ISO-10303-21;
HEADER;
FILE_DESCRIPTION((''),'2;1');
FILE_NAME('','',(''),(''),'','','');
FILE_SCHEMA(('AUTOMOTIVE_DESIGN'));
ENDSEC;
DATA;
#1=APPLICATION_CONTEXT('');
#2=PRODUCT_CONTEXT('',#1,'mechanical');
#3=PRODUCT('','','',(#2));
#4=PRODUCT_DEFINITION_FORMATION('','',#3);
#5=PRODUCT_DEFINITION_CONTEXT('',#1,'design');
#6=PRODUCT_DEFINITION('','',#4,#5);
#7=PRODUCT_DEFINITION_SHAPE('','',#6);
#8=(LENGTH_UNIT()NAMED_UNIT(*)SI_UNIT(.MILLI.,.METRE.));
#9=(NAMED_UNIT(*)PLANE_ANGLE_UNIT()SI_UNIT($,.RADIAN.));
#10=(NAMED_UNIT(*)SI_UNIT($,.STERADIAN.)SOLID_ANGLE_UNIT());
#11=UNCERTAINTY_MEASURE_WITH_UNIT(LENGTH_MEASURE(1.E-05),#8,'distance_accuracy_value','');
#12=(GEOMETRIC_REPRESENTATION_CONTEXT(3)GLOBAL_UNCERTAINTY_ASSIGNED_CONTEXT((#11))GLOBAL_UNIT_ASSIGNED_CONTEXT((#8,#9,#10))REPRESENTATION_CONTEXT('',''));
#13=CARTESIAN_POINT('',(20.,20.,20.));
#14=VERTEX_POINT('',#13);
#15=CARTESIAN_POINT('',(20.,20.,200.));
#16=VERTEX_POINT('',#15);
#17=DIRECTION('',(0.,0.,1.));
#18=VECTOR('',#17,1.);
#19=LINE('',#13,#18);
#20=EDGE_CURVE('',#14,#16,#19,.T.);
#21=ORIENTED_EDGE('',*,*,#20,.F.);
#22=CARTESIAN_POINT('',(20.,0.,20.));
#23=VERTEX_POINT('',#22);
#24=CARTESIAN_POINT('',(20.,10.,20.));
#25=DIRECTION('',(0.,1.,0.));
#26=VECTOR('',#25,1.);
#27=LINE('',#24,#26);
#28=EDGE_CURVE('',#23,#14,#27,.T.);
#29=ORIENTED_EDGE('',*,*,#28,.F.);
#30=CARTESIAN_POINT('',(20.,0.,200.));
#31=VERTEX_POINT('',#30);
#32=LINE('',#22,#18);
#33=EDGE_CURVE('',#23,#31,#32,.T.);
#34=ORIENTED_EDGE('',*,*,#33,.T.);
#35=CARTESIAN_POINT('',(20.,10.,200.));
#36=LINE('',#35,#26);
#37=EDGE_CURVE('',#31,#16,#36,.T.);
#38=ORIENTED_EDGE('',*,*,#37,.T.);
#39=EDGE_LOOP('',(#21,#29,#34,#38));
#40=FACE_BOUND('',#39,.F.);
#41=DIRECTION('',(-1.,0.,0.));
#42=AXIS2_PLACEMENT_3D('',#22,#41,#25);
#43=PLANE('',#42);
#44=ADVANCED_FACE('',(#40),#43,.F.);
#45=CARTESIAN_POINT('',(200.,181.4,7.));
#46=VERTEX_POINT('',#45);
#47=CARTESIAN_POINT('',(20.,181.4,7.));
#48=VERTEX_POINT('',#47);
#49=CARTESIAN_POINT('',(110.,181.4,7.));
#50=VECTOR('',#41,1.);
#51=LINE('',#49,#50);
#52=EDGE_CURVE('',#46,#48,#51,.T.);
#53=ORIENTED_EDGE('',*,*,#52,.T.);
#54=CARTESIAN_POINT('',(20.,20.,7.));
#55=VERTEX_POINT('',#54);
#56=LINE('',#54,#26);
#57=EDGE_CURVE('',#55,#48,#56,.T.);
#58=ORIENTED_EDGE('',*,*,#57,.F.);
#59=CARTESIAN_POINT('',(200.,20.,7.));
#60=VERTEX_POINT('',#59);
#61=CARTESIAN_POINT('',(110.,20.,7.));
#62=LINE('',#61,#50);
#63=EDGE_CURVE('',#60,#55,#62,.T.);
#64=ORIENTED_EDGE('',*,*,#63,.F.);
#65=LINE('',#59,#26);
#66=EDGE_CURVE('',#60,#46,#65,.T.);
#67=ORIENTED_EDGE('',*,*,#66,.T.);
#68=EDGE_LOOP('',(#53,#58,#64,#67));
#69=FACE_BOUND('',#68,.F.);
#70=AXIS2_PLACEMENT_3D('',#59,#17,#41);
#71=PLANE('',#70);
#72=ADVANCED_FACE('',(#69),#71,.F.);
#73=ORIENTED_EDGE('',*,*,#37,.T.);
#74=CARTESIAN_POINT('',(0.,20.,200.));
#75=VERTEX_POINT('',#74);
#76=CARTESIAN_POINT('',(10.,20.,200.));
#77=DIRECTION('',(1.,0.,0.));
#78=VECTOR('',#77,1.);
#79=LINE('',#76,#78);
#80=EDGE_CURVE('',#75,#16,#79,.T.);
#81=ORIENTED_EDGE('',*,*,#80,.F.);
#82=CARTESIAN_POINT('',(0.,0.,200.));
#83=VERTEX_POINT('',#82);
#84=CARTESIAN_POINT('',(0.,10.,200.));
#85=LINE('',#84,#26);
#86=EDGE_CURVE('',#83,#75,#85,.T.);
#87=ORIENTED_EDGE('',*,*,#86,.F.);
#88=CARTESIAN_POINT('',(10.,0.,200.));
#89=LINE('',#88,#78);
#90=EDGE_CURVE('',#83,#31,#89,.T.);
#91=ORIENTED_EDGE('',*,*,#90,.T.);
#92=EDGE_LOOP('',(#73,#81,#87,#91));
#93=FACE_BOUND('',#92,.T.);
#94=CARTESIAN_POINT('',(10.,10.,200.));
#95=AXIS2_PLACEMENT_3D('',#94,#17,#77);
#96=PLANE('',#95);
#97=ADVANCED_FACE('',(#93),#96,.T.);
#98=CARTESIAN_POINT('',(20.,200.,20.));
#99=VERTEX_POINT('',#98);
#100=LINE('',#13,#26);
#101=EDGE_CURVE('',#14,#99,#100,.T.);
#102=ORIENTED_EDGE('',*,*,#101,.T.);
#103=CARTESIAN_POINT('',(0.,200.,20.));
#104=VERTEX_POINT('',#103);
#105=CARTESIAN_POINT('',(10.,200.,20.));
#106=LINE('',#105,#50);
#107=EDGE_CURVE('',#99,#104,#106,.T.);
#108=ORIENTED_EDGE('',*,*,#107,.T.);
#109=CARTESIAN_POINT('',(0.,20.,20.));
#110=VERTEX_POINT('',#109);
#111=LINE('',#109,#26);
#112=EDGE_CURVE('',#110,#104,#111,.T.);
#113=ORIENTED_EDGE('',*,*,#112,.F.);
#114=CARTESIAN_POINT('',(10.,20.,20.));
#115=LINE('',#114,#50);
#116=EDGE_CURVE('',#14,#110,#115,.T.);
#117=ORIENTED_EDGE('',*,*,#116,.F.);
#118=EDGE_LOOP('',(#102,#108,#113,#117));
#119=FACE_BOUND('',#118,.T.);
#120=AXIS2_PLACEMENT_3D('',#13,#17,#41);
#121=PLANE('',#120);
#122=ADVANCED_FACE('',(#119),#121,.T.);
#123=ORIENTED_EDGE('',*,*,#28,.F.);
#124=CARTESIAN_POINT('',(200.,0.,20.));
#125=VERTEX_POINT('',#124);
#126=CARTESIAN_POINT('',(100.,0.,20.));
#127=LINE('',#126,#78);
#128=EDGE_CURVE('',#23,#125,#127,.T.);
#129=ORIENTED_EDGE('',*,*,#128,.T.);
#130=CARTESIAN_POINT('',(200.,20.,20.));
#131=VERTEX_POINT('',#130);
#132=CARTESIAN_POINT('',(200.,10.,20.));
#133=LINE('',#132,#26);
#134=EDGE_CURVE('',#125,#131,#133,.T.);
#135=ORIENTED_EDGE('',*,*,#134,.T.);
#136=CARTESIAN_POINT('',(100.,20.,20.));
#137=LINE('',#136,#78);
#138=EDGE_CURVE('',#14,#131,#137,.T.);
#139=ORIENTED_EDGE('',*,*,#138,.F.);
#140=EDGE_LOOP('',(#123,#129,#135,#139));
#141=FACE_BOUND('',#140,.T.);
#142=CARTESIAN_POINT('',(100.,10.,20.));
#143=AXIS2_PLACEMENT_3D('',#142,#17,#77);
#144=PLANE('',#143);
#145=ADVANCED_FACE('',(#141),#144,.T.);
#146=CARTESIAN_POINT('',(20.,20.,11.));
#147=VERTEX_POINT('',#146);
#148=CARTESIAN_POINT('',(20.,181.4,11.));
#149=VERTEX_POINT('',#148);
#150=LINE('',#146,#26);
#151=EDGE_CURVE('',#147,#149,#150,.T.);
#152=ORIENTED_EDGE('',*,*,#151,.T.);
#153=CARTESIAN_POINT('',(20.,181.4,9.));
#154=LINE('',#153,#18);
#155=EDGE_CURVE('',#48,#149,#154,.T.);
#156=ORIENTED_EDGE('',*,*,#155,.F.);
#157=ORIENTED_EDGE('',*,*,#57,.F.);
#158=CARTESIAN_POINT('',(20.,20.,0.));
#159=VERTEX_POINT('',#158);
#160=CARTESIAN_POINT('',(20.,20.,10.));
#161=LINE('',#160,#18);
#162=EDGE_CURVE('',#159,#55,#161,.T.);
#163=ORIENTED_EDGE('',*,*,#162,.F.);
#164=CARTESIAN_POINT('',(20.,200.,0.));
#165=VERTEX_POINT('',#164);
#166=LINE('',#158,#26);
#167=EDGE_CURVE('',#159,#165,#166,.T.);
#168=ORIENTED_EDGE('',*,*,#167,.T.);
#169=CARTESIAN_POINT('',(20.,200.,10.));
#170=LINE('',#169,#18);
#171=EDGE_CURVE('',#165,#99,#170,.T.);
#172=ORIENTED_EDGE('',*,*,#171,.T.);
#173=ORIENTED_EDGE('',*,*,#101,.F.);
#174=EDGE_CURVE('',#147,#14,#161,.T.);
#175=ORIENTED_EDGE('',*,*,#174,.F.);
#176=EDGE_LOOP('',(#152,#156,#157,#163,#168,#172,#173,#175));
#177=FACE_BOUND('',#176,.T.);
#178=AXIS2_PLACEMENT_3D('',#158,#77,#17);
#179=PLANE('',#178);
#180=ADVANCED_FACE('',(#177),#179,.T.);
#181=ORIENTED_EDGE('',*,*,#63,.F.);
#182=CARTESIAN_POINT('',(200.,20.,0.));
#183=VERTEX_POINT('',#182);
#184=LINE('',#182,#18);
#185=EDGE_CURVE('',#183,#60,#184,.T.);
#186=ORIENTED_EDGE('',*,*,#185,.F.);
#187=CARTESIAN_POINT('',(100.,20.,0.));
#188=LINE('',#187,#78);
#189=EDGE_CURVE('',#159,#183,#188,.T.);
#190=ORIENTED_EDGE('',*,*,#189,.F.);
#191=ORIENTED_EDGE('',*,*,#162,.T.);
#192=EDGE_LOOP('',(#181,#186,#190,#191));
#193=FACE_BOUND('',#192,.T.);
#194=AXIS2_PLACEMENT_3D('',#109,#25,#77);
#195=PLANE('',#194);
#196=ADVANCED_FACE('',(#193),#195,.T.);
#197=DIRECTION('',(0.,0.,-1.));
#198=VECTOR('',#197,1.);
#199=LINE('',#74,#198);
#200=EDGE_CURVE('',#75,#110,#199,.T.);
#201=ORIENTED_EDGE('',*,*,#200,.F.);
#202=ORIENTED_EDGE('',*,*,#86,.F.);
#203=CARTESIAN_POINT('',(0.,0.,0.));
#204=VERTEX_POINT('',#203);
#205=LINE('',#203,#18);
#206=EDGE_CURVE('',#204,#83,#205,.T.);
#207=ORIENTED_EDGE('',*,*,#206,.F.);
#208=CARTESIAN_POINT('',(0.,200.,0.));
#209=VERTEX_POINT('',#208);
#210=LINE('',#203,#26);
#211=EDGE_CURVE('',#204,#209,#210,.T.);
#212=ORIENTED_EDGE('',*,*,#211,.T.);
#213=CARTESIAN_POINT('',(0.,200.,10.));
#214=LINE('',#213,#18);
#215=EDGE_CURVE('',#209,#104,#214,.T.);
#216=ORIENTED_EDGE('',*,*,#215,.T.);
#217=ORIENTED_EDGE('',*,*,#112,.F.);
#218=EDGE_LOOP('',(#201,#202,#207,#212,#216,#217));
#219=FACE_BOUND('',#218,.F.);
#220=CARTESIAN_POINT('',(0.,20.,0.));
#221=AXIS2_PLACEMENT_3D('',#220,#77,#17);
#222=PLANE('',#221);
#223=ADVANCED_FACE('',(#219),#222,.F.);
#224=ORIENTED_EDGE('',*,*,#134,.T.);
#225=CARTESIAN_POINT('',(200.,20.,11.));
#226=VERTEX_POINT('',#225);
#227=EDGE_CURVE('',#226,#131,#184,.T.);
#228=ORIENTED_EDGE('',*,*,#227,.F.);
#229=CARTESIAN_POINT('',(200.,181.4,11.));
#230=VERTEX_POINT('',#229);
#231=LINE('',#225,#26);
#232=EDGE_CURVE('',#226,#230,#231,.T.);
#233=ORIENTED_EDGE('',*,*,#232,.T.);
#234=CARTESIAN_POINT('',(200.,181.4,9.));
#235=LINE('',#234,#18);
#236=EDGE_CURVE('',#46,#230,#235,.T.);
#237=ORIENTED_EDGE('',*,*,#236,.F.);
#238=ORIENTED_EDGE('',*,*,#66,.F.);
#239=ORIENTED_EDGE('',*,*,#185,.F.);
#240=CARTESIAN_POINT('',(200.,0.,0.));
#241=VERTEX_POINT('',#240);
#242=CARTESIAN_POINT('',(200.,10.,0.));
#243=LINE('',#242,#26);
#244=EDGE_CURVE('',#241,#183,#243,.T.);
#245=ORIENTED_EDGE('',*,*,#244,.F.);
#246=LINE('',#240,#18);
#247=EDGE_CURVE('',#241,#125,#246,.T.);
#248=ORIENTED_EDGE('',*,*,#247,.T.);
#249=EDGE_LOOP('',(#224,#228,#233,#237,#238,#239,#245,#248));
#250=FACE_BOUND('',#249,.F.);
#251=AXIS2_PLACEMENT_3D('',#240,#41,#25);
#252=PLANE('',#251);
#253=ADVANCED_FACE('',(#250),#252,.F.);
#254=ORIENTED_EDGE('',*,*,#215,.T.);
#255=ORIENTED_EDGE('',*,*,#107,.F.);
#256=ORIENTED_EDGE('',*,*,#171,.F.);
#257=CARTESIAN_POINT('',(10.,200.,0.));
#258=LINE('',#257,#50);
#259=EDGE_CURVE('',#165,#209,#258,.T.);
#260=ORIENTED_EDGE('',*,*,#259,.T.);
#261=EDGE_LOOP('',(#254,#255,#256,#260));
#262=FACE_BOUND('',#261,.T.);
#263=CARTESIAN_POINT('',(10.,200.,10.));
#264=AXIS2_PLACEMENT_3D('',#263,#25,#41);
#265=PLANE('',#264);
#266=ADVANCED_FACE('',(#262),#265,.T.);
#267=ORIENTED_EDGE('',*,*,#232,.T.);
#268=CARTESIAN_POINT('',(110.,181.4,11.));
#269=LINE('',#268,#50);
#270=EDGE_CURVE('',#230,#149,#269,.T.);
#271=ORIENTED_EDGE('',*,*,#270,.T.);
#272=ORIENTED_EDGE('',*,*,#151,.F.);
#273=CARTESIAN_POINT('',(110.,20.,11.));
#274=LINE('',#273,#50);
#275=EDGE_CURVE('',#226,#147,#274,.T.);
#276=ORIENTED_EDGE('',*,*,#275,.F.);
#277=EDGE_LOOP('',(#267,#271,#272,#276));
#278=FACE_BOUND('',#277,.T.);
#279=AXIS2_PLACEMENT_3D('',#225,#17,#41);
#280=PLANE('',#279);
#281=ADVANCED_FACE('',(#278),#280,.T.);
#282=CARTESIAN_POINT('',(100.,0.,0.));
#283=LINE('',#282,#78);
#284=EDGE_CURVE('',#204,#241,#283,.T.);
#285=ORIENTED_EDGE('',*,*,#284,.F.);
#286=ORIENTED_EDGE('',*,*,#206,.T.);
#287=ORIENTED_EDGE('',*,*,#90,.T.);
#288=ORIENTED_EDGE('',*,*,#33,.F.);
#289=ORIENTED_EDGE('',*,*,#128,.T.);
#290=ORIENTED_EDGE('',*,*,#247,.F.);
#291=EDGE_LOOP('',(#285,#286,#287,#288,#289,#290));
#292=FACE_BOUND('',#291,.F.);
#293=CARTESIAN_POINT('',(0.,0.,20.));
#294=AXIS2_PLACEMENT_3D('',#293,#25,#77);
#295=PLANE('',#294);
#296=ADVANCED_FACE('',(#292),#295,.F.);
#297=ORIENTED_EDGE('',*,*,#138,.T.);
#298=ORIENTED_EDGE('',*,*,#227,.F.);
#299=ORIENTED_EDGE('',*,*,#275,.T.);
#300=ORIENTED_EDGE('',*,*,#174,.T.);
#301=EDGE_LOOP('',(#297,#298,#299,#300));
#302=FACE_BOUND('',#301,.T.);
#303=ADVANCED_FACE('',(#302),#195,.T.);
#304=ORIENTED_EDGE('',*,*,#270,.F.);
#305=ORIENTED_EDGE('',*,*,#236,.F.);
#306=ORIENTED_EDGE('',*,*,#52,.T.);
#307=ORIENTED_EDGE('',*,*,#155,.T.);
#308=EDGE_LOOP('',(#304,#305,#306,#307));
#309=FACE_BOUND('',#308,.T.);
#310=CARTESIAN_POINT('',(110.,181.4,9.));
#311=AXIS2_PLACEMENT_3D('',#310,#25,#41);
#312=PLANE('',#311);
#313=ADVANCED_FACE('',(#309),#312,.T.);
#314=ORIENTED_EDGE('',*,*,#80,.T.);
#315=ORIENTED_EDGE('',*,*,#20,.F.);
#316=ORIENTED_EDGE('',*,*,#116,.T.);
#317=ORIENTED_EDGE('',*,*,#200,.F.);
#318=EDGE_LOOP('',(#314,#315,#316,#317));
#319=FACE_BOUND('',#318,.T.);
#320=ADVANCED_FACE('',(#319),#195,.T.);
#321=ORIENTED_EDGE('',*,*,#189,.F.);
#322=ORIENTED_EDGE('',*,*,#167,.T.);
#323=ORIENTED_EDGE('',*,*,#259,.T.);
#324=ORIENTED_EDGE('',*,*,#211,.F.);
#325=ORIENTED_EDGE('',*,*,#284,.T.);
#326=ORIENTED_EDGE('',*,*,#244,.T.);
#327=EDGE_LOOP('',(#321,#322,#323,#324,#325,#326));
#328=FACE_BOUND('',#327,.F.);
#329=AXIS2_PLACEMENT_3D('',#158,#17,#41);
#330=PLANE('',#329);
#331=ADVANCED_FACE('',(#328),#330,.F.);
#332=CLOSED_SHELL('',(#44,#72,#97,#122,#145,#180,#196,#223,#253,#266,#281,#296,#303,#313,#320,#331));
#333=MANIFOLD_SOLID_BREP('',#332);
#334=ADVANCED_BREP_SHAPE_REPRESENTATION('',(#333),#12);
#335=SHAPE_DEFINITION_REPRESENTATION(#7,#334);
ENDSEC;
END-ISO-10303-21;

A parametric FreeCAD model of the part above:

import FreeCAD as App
import Part
import Sketcher

V = App.Vector

doc = App.newDocument("Part")
body = doc.addObject("PartDesign::Body", "Body")

# Sketch on XY plane
sketch1 = body.newObject("Sketcher::SketchObject", "Sketch")
sketch1.AttachmentSupport = (doc.getObject("XY_Plane"), [""])
sketch1.MapMode = "FlatFace"
sketch1.addGeometry([
    Part.LineSegment(V(0, 20, 0), V(0, 0, 0)),
    Part.LineSegment(V(0, 0, 0), V(200, 0, 0)),
    Part.LineSegment(V(200, 0, 0), V(200, 20, 0)),
    Part.LineSegment(V(200, 20, 0), V(0, 20, 0)),
], False)
sketch1.addConstraint([
    Sketcher.Constraint("Coincident", 0, 2, 1, 1),
    Sketcher.Constraint("Coincident", 1, 2, 2, 1),
    Sketcher.Constraint("Coincident", 2, 2, 3, 1),
    Sketcher.Constraint("Coincident", 3, 2, 0, 1),
    Sketcher.Constraint("Vertical", 0),
    Sketcher.Constraint("Horizontal", 1),
    Sketcher.Constraint("Vertical", 2),
    Sketcher.Constraint("Horizontal", 3),
    Sketcher.Constraint("Coincident", 0, 2, -1, 1),
    Sketcher.Constraint("DistanceX", 1, 1, 1, 2, 200.0),
    Sketcher.Constraint("DistanceY", 0, 2, 0, 1, 20.0),
])
pad1 = body.newObject("PartDesign::Pad", "Pad")
pad1.Profile = sketch1
pad1.Length = 20

# Sketch on XY plane
sketch2 = body.newObject("Sketcher::SketchObject", "Sketch001")
sketch2.AttachmentSupport = (doc.getObject("XY_Plane"), [""])
sketch2.MapMode = "FlatFace"
sketch2.AttachmentOffset = App.Placement(V(0, 0, 20), App.Rotation())
sketch2.addGeometry([
    Part.LineSegment(V(0, 20, 0), V(0, 0, 0)),
    Part.LineSegment(V(0, 0, 0), V(20, 0, 0)),
    Part.LineSegment(V(20, 0, 0), V(20, 20, 0)),
    Part.LineSegment(V(20, 20, 0), V(0, 20, 0)),
], False)
sketch2.addConstraint([
    Sketcher.Constraint("Coincident", 0, 2, 1, 1),
    Sketcher.Constraint("Coincident", 1, 2, 2, 1),
    Sketcher.Constraint("Coincident", 2, 2, 3, 1),
    Sketcher.Constraint("Coincident", 3, 2, 0, 1),
    Sketcher.Constraint("Vertical", 0),
    Sketcher.Constraint("Horizontal", 1),
    Sketcher.Constraint("Vertical", 2),
    Sketcher.Constraint("Horizontal", 3),
    Sketcher.Constraint("Coincident", 0, 2, -1, 1),
    Sketcher.Constraint("Equal", 3, 0),
    Sketcher.Constraint("DistanceX", 1, 1, 1, 2, 20.0),
])
pad2 = body.newObject("PartDesign::Pad", "Pad001")
pad2.Profile = sketch2
pad2.Length = 180

# Sketch on XZ plane
sketch3 = body.newObject("Sketcher::SketchObject", "Sketch002")
sketch3.AttachmentSupport = (doc.getObject("XZ_Plane"), [""])
sketch3.MapMode = "FlatFace"
sketch3.AttachmentOffset = App.Placement(V(0, 0, -20), App.Rotation())
sketch3.addGeometry([
    Part.LineSegment(V(20, 20, 0), V(20, 0, 0)),
    Part.LineSegment(V(20, 0, 0), V(0, 0, 0)),
    Part.LineSegment(V(0, 0, 0), V(0, 20, 0)),
    Part.LineSegment(V(0, 20, 0), V(20, 20, 0)),
], False)
sketch3.addConstraint([
    Sketcher.Constraint("Coincident", 0, 2, 1, 1),
    Sketcher.Constraint("Coincident", 1, 2, 2, 1),
    Sketcher.Constraint("Coincident", 2, 2, 3, 1),
    Sketcher.Constraint("Coincident", 3, 2, 0, 1),
    Sketcher.Constraint("Vertical", 0),
    Sketcher.Constraint("Horizontal", 1),
    Sketcher.Constraint("Vertical", 2),
    Sketcher.Constraint("Horizontal", 3),
    Sketcher.Constraint("Coincident", 1, 2, -1, 1),
    Sketcher.Constraint("Equal", 3, 0),
    Sketcher.Constraint("DistanceX", 1, 2, 1, 1, 20.0),
])
pad3 = body.newObject("PartDesign::Pad", "Pad002")
pad3.Profile = sketch3
pad3.Length = 180
pad3.Reversed = True

# Sketch on XZ plane
sketch4 = body.newObject("Sketcher::SketchObject", "Sketch003")
sketch4.AttachmentSupport = (doc.getObject("XZ_Plane"), [""])
sketch4.MapMode = "FlatFace"
sketch4.AttachmentOffset = App.Placement(V(0, 0, -20), App.Rotation())
sketch4.addGeometry([
    Part.LineSegment(V(200, 11, 0), V(200, 7, 0)),
    Part.LineSegment(V(200, 7, 0), V(20, 7, 0)),
    Part.LineSegment(V(20, 7, 0), V(20, 11, 0)),
    Part.LineSegment(V(20, 11, 0), V(200, 11, 0)),
], False)
sketch4.addConstraint([
    Sketcher.Constraint("Coincident", 0, 2, 1, 1),
    Sketcher.Constraint("Coincident", 1, 2, 2, 1),
    Sketcher.Constraint("Coincident", 2, 2, 3, 1),
    Sketcher.Constraint("Coincident", 3, 2, 0, 1),
    Sketcher.Constraint("Vertical", 0),
    Sketcher.Constraint("Horizontal", 1),
    Sketcher.Constraint("Vertical", 2),
    Sketcher.Constraint("Horizontal", 3),
    Sketcher.Constraint("DistanceX", 1, 2, 1, 1, 180.0),
    Sketcher.Constraint("DistanceY", 0, 2, 0, 1, 4.0),
    Sketcher.Constraint("DistanceX", -1, 1, 0, 2, 200.0),
    Sketcher.Constraint("DistanceY", -1, 1, 0, 2, 7.0),
])
pad4 = body.newObject("PartDesign::Pad", "Pad003")
pad4.Profile = sketch4
pad4.Length = 161.4
pad4.Reversed = True

doc.recompute()
